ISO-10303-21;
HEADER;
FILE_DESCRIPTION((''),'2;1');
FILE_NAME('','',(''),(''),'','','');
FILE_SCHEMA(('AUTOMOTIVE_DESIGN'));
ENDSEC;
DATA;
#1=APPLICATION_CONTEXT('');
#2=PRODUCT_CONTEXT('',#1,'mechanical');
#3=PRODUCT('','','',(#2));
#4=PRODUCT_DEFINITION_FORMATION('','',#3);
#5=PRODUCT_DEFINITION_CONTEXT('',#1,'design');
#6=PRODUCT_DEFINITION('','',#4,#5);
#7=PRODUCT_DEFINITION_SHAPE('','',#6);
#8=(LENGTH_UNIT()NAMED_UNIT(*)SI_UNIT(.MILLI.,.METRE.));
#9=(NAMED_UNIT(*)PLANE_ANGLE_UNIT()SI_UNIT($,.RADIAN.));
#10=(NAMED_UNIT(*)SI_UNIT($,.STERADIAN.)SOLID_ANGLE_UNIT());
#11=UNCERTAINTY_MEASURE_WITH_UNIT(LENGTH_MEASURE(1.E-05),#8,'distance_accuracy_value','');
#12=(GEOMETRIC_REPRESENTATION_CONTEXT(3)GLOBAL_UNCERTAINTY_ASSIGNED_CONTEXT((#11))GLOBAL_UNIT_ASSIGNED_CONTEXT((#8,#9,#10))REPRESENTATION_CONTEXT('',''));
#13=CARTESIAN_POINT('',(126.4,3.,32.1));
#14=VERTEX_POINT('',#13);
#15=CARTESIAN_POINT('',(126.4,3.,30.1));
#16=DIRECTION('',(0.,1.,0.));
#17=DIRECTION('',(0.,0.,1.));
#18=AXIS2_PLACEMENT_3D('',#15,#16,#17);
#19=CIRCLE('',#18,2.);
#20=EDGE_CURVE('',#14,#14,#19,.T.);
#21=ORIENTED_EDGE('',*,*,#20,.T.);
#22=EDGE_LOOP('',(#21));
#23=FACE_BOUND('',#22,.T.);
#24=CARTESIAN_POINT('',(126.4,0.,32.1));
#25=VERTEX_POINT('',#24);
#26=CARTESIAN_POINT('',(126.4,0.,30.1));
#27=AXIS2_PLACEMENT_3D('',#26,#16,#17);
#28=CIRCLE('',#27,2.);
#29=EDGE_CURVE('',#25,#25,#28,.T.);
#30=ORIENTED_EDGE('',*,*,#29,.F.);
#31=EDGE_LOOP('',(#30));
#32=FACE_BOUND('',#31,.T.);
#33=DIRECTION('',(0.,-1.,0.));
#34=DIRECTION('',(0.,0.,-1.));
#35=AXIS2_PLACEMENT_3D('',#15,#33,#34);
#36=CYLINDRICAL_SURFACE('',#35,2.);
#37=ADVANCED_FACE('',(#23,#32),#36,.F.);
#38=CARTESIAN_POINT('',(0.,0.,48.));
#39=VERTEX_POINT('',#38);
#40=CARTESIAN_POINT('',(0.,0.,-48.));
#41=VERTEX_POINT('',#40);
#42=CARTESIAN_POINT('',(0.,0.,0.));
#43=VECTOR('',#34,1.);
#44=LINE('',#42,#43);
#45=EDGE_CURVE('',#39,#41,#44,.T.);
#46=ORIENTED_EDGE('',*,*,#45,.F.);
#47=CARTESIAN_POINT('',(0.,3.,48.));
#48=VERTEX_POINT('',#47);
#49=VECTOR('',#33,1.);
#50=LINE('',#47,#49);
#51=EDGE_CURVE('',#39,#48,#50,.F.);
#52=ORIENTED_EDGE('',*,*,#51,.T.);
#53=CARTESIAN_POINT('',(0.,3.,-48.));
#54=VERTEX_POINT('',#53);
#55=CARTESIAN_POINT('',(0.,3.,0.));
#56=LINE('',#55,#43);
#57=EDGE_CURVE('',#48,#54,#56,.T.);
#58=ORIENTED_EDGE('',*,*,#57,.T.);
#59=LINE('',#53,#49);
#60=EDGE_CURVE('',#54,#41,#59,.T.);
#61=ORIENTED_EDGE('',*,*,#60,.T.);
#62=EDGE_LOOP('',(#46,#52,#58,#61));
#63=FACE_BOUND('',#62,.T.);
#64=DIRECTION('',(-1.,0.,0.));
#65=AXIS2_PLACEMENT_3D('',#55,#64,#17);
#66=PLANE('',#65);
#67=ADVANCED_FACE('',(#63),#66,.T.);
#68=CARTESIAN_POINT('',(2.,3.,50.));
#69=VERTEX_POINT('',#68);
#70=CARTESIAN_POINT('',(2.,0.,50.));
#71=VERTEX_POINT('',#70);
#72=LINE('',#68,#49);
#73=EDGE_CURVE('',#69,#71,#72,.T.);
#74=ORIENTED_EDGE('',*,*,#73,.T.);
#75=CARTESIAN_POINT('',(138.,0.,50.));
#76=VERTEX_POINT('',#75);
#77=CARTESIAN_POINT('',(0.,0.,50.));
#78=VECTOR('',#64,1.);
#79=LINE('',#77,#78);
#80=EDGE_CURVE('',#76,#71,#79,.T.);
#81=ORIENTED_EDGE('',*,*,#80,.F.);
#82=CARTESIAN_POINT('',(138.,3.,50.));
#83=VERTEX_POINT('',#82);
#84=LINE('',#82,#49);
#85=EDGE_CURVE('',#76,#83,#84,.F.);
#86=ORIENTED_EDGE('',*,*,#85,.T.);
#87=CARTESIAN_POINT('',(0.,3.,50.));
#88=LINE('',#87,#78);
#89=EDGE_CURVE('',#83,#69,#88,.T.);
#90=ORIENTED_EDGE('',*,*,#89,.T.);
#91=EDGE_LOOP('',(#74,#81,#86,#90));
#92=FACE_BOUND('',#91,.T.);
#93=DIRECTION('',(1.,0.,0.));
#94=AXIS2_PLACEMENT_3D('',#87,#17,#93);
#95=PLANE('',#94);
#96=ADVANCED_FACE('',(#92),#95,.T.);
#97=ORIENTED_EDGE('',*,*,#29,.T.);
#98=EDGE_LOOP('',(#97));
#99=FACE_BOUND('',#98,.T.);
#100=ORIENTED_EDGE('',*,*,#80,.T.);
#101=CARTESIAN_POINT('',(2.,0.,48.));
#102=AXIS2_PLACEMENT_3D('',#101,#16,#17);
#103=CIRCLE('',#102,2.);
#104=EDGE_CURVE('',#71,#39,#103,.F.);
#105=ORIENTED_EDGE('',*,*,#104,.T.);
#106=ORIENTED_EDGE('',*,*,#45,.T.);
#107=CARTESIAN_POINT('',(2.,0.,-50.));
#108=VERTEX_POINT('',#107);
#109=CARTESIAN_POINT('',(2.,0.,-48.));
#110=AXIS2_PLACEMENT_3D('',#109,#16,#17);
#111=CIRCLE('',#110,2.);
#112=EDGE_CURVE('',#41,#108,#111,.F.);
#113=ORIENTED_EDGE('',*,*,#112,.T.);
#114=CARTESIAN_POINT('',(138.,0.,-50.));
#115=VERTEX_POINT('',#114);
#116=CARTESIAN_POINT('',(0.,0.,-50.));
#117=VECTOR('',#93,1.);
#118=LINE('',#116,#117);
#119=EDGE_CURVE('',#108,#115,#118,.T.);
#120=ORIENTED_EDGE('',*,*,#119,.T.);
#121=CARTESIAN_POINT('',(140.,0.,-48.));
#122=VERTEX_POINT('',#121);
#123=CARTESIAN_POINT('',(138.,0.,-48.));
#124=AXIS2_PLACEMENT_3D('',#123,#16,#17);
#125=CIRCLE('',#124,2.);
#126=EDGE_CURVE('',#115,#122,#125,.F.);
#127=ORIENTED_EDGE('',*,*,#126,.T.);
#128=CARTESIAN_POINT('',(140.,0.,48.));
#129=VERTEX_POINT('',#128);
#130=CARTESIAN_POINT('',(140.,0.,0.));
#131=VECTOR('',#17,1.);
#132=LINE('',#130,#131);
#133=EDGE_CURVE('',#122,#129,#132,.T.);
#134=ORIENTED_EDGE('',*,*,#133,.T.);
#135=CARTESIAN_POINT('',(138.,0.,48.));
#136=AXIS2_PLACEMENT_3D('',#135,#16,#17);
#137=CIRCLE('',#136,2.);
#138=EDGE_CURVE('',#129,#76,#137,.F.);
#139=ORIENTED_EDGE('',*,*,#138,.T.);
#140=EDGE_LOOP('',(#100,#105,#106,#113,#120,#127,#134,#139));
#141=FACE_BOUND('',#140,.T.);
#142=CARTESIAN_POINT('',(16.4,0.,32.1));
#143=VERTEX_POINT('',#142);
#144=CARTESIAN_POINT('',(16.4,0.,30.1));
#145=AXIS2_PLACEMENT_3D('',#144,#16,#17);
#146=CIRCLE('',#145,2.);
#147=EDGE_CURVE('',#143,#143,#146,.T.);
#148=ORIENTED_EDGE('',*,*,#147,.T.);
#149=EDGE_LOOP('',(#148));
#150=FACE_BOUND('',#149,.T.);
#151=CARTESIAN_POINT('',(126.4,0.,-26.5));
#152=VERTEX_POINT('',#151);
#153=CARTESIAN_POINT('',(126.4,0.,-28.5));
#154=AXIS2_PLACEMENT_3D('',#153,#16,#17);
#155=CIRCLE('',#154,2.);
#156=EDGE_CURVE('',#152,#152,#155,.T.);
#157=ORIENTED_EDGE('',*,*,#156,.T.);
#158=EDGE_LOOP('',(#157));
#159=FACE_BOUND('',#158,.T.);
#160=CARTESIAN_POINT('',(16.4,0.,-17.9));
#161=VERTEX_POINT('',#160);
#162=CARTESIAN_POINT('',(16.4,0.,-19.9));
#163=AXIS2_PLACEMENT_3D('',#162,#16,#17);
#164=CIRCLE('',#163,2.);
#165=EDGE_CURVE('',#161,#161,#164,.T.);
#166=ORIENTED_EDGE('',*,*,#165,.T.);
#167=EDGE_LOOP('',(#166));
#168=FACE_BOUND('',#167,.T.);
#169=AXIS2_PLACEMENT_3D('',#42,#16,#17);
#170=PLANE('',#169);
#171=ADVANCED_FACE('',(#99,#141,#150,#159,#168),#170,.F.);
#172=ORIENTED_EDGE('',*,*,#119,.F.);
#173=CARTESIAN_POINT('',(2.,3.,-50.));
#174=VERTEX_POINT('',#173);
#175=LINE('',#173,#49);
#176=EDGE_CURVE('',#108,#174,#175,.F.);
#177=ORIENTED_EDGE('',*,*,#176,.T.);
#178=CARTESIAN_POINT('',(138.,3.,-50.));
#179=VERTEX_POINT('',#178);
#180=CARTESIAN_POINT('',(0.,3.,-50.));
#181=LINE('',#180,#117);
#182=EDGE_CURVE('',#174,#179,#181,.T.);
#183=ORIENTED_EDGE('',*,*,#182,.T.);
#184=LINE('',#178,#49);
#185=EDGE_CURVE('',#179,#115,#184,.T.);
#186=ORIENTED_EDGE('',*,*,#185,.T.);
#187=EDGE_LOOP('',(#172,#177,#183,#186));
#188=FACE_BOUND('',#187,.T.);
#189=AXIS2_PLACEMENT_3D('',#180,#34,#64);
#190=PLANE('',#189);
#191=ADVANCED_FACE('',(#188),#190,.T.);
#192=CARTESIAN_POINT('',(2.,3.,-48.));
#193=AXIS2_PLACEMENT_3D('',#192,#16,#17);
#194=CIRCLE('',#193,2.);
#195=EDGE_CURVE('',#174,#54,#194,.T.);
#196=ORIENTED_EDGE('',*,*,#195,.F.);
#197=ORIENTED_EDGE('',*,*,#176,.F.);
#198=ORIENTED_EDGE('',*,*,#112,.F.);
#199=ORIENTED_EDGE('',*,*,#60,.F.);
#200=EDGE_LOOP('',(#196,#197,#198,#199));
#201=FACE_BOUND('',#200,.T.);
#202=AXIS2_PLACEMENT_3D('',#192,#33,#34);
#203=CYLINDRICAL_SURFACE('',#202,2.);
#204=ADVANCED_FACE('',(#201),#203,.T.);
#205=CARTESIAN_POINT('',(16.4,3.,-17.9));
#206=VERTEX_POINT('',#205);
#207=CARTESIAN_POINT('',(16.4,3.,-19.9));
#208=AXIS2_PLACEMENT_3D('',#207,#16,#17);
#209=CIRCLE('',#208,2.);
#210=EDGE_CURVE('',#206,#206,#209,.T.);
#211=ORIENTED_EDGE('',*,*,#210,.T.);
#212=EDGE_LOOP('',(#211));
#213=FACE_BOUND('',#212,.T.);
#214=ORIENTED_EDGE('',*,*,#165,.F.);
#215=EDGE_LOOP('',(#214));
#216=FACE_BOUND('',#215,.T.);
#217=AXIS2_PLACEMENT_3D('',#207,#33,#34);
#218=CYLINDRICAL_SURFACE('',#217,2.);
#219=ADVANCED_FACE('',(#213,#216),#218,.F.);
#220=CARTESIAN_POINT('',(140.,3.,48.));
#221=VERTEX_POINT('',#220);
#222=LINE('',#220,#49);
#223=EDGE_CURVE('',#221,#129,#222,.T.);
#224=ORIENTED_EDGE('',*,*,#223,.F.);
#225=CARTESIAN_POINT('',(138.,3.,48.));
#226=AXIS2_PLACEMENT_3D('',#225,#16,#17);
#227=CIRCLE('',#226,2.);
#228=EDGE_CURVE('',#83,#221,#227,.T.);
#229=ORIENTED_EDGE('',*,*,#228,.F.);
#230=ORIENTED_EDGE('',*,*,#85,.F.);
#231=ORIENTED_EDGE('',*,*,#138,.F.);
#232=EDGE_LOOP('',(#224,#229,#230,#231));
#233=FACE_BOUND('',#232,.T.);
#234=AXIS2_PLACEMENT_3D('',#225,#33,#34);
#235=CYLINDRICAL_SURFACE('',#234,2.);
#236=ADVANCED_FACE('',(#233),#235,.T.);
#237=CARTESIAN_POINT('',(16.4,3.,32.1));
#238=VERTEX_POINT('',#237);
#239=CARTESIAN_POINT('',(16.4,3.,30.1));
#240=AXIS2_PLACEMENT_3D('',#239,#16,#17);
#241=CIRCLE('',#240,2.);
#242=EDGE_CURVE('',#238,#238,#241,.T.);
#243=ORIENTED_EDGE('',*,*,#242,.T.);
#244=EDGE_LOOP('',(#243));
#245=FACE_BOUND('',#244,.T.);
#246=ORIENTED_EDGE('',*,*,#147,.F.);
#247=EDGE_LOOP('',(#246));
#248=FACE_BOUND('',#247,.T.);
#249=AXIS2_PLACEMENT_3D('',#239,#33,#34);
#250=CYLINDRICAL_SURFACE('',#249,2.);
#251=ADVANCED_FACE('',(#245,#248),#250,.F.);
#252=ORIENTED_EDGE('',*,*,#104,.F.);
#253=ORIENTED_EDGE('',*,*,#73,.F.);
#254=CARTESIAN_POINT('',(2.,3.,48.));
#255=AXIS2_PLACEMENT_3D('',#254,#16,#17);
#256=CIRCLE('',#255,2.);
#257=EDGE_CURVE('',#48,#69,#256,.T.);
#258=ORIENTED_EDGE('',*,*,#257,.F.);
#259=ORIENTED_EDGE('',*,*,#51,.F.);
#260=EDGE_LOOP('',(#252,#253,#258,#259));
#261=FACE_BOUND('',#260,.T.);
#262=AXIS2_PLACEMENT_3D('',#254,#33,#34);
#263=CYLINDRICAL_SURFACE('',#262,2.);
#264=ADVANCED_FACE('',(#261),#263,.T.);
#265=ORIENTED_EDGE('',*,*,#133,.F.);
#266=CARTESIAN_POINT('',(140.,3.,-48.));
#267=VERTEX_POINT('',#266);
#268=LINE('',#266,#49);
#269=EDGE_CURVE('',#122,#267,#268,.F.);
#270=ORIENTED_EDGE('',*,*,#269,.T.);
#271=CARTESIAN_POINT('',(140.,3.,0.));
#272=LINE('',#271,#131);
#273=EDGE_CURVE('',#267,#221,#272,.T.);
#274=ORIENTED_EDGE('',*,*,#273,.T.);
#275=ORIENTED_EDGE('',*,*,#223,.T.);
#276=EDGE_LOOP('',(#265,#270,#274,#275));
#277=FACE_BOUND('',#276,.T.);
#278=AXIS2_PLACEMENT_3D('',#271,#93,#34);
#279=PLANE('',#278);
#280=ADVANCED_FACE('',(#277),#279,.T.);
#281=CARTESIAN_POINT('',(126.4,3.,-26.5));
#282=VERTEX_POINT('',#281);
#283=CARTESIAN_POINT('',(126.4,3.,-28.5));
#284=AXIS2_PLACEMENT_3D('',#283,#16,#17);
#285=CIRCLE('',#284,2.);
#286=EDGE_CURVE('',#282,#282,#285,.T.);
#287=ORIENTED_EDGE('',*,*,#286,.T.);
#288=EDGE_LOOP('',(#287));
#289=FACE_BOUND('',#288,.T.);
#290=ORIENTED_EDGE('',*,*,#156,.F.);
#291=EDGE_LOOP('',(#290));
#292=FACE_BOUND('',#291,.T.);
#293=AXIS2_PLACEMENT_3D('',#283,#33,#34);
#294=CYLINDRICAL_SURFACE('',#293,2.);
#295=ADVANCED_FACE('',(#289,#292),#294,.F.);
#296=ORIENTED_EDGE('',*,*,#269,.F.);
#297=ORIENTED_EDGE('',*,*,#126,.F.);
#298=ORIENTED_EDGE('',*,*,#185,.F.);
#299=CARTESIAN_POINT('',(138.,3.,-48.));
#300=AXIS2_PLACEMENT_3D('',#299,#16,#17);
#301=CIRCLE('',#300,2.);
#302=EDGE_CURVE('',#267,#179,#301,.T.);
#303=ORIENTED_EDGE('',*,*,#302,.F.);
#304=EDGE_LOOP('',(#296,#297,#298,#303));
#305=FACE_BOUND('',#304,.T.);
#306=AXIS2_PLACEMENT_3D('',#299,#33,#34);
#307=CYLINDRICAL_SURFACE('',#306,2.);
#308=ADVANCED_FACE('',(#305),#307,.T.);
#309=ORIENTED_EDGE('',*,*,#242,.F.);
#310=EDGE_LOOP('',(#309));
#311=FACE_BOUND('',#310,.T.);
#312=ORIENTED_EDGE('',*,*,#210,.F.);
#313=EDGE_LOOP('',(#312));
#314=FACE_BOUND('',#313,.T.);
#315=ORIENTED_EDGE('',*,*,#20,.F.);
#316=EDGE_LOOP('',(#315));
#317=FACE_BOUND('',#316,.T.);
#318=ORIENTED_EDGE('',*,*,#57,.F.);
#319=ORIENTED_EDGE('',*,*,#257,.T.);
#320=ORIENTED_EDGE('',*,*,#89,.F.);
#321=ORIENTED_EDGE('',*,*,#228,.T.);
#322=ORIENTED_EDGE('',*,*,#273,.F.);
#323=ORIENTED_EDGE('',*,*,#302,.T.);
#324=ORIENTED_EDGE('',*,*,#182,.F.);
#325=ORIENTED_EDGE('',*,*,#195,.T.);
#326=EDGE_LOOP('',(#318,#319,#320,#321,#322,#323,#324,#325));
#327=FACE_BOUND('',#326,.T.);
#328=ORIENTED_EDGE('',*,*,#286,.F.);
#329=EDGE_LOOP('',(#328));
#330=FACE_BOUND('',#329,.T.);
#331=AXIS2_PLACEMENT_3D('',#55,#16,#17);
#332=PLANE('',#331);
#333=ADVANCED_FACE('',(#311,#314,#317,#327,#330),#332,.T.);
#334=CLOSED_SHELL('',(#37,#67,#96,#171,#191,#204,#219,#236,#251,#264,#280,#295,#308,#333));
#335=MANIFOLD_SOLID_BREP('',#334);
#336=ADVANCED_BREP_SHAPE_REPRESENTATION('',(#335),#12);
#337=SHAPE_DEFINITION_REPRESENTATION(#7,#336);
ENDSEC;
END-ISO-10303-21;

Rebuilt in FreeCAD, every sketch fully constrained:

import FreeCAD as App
import Part
import Sketcher
Q = App.Units.Quantity


def edges_at(feature, points):
    """Names of the edges that pass closest to the given points."""
    edges = feature.Shape.Edges
    near = lambda p: min(range(len(edges)), key=lambda i: edges[i].distToShape(Part.Vertex(*p))[0])
    return sorted({f"Edge{near(p) + 1}" for p in points})


def add_polygon(sketch, points):
    """Adds a closed chain of lines whose ends are joined by coincident constraints."""
    first, n = sketch.GeometryCount, len(points)
    for a, b in zip(points, points[1:] + points[:1]):
        sketch.addGeometry(Part.LineSegment(App.Vector(*a, 0), App.Vector(*b, 0)), False)
    for i in range(n):
        sketch.addConstraint(Sketcher.Constraint("Coincident", first + i, 2, first + (i + 1) % n, 1))

doc = App.newDocument("Part")
body = doc.addObject("PartDesign::Body", "Body")

# Sketch on XZ plane
sketch1 = body.newObject("Sketcher::SketchObject", "Sketch")
sketch1.AttachmentSupport = (doc.getObject("XZ_Plane"), [""])
sketch1.MapMode = "FlatFace"
add_polygon(sketch1, [(0, 50), (140, 50), (140, -50), (0, -50)])  # lines 0-3
sketch1.addGeometry(Part.Circle(App.Vector(16.4, 30.1, 0), App.Vector(0, 0, 1), 2), False)  # 4
sketch1.addGeometry(Part.Circle(App.Vector(126.4, 30.1, 0), App.Vector(0, 0, 1), 2), False)  # 5
sketch1.addGeometry(Part.Circle(App.Vector(16.4, -19.9, 0), App.Vector(0, 0, 1), 2), False)  # 6
sketch1.addGeometry(Part.Circle(App.Vector(126.4, -28.5, 0), App.Vector(0, 0, 1), 2), False)  # 7
sketch1.addConstraint(Sketcher.Constraint("Horizontal", 0))
sketch1.addConstraint(Sketcher.Constraint("Vertical", 1))
sketch1.addConstraint(Sketcher.Constraint("Horizontal", 2))
sketch1.addConstraint(Sketcher.Constraint("Vertical", 3))
sketch1.addConstraint(Sketcher.Constraint("Equal", 4, 5))
sketch1.addConstraint(Sketcher.Constraint("Equal", 5, 6))
sketch1.addConstraint(Sketcher.Constraint("Equal", 6, 7))
sketch1.addConstraint(Sketcher.Constraint("Symmetric", 2, 2, 3, 2, -1, 1))
sketch1.addConstraint(Sketcher.Constraint("Horizontal", 4, 3, 5, 3))
sketch1.addConstraint(Sketcher.Constraint("Vertical", 4, 3, 6, 3))
sketch1.addConstraint(Sketcher.Constraint("Vertical", 5, 3, 7, 3))
sketch1.addConstraint(Sketcher.Constraint("Diameter", 4, Q("4 mm")))
sketch1.addConstraint(Sketcher.Constraint("DistanceX", 0, 1, 0, 2, Q("140 mm")))
sketch1.addConstraint(Sketcher.Constraint("DistanceY", 1, 2, 1, 1, Q("100 mm")))
sketch1.addConstraint(Sketcher.Constraint("DistanceX", 4, 3, 5, 3, Q("110 mm")))
sketch1.addConstraint(Sketcher.Constraint("DistanceY", 6, 3, 4, 3, Q("50 mm")))
sketch1.addConstraint(Sketcher.Constraint("DistanceX", -1, 1, 4, 3, Q("16.4 mm")))
sketch1.addConstraint(Sketcher.Constraint("DistanceY", -1, 1, 4, 3, Q("30.1 mm")))
sketch1.addConstraint(Sketcher.Constraint("DistanceY", 7, 3, -1, 1, Q("28.5 mm")))
pad1 = body.newObject("PartDesign::Pad", "Pad")
pad1.Profile = sketch1
pad1.Length = 3
pad1.Reversed = True
doc.recompute()

fillet = body.newObject("PartDesign::Fillet", "Fillet")
fillet.Base = (pad1, edges_at(pad1, [
    (0, 1.5, 50),
    (0, 1.5, -50),
    (140, 1.5, -50),
    (140, 1.5, 50),
]))
fillet.Radius = 2

doc.recompute()
